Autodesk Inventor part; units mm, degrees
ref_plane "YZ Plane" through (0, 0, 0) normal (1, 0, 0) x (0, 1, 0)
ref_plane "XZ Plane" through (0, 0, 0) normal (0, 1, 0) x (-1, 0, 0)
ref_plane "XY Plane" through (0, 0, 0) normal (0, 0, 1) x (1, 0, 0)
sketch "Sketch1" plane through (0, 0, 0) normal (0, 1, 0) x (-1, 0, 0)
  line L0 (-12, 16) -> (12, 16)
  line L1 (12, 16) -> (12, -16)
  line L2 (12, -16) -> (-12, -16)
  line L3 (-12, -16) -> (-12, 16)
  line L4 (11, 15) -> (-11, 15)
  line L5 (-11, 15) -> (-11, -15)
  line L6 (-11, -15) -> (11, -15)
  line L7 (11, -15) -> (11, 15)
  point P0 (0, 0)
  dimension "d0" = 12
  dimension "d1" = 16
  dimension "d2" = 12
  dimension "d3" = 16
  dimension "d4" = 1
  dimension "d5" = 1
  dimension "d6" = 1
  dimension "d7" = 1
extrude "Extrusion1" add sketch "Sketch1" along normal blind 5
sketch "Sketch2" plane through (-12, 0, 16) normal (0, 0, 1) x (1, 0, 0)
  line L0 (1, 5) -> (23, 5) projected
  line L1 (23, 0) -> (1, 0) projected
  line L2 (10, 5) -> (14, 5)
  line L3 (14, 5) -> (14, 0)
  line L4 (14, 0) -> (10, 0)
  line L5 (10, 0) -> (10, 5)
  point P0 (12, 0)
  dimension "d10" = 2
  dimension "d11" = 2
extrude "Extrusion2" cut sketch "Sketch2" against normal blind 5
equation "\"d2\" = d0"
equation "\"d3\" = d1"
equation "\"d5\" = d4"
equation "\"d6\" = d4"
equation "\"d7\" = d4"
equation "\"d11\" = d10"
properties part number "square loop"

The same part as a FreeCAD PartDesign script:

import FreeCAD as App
import Part
import Sketcher
from FreeCAD import Vector
Q = App.Units.Quantity

doc = App.newDocument("Part")
body = doc.addObject("PartDesign::Body", "Body")

sketch1 = body.newObject("Sketcher::SketchObject", "Sketch")
sketch1.AttachmentSupport = (doc.getObject("XZ_Plane"), [""])
sketch1.MapMode = "FlatFace"
sketch1.addGeometry([
    Part.LineSegment(Vector(-12, 16, 0), Vector(12, 16, 0)),
    Part.LineSegment(Vector(12, 16, 0), Vector(12, -16, 0)),
    Part.LineSegment(Vector(12, -16, 0), Vector(-12, -16, 0)),
    Part.LineSegment(Vector(-12, -16, 0), Vector(-12, 16, 0)),
    Part.LineSegment(Vector(11, 15, 0), Vector(-11, 15, 0)),
    Part.LineSegment(Vector(-11, 15, 0), Vector(-11, -15, 0)),
    Part.LineSegment(Vector(-11, -15, 0), Vector(11, -15, 0)),
    Part.LineSegment(Vector(11, -15, 0), Vector(11, 15, 0)),
], False)
sketch1.addConstraint([
    Sketcher.Constraint("Coincident", 0, 2, 1, 1),
    Sketcher.Constraint("Coincident", 1, 2, 2, 1),
    Sketcher.Constraint("Coincident", 2, 2, 3, 1),
    Sketcher.Constraint("Coincident", 3, 2, 0, 1),
    Sketcher.Constraint("Coincident", 4, 2, 5, 1),
    Sketcher.Constraint("Coincident", 5, 2, 6, 1),
    Sketcher.Constraint("Coincident", 6, 2, 7, 1),
    Sketcher.Constraint("Coincident", 7, 2, 4, 1),
    Sketcher.Constraint("Horizontal", 0),
    Sketcher.Constraint("Vertical", 1),
    Sketcher.Constraint("Horizontal", 2),
    Sketcher.Constraint("Vertical", 3),
    Sketcher.Constraint("Horizontal", 4),
    Sketcher.Constraint("Vertical", 5),
    Sketcher.Constraint("Horizontal", 6),
    Sketcher.Constraint("Vertical", 7),
    Sketcher.Constraint("Symmetric", 0, 2, 2, 2, -1, 1),
    Sketcher.Constraint("Symmetric", 4, 2, 6, 2, -1, 1),
    Sketcher.Constraint("DistanceX", -1, 1, 0, 2, Q("12 mm")),
    Sketcher.Constraint("DistanceY", -1, 1, 0, 2, Q("16 mm")),
    Sketcher.Constraint("DistanceX", 3, 2, 4, 2, Q("1 mm")),
    Sketcher.Constraint("DistanceY", 4, 2, 3, 2, Q("1 mm")),
])
pad1 = body.newObject("PartDesign::Pad", "Pad")
pad1.Profile = sketch1
pad1.Length = 5
pad1.Reversed = True

sketch2 = body.newObject("Sketcher::SketchObject", "Sketch001")
sketch2.AttachmentSupport = (doc.getObject("XY_Plane"), [""])
sketch2.MapMode = "FlatFace"
sketch2.AttachmentOffset = App.Placement(Vector(0, 0, 16), App.Rotation())
sketch2.addGeometry([
    Part.LineSegment(Vector(2, 5, 0), Vector(-2, 5, 0)),
    Part.LineSegment(Vector(-2, 5, 0), Vector(-2, 0, 0)),
    Part.LineSegment(Vector(-2, 0, 0), Vector(2, 0, 0)),
    Part.LineSegment(Vector(2, 0, 0), Vector(2, 5, 0)),
], False)
sketch2.addConstraint([
    Sketcher.Constraint("Coincident", 0, 2, 1, 1),
    Sketcher.Constraint("Coincident", 1, 2, 2, 1),
    Sketcher.Constraint("Coincident", 2, 2, 3, 1),
    Sketcher.Constraint("Coincident", 3, 2, 0, 1),
    Sketcher.Constraint("Horizontal", 0),
    Sketcher.Constraint("Vertical", 1),
    Sketcher.Constraint("Horizontal", 2),
    Sketcher.Constraint("Vertical", 3),
    Sketcher.Constraint("Symmetric", 1, 2, 2, 2, -1, 1),
    Sketcher.Constraint("DistanceX", 0, 2, -1, 1, Q("2 mm")),
    Sketcher.Constraint("DistanceY", 1, 2, 1, 1, Q("5 mm")),
])
pocket1 = body.newObject("PartDesign::Pocket", "Pocket")
pocket1.Profile = sketch2
pocket1.Length = 5

doc.recompute()
